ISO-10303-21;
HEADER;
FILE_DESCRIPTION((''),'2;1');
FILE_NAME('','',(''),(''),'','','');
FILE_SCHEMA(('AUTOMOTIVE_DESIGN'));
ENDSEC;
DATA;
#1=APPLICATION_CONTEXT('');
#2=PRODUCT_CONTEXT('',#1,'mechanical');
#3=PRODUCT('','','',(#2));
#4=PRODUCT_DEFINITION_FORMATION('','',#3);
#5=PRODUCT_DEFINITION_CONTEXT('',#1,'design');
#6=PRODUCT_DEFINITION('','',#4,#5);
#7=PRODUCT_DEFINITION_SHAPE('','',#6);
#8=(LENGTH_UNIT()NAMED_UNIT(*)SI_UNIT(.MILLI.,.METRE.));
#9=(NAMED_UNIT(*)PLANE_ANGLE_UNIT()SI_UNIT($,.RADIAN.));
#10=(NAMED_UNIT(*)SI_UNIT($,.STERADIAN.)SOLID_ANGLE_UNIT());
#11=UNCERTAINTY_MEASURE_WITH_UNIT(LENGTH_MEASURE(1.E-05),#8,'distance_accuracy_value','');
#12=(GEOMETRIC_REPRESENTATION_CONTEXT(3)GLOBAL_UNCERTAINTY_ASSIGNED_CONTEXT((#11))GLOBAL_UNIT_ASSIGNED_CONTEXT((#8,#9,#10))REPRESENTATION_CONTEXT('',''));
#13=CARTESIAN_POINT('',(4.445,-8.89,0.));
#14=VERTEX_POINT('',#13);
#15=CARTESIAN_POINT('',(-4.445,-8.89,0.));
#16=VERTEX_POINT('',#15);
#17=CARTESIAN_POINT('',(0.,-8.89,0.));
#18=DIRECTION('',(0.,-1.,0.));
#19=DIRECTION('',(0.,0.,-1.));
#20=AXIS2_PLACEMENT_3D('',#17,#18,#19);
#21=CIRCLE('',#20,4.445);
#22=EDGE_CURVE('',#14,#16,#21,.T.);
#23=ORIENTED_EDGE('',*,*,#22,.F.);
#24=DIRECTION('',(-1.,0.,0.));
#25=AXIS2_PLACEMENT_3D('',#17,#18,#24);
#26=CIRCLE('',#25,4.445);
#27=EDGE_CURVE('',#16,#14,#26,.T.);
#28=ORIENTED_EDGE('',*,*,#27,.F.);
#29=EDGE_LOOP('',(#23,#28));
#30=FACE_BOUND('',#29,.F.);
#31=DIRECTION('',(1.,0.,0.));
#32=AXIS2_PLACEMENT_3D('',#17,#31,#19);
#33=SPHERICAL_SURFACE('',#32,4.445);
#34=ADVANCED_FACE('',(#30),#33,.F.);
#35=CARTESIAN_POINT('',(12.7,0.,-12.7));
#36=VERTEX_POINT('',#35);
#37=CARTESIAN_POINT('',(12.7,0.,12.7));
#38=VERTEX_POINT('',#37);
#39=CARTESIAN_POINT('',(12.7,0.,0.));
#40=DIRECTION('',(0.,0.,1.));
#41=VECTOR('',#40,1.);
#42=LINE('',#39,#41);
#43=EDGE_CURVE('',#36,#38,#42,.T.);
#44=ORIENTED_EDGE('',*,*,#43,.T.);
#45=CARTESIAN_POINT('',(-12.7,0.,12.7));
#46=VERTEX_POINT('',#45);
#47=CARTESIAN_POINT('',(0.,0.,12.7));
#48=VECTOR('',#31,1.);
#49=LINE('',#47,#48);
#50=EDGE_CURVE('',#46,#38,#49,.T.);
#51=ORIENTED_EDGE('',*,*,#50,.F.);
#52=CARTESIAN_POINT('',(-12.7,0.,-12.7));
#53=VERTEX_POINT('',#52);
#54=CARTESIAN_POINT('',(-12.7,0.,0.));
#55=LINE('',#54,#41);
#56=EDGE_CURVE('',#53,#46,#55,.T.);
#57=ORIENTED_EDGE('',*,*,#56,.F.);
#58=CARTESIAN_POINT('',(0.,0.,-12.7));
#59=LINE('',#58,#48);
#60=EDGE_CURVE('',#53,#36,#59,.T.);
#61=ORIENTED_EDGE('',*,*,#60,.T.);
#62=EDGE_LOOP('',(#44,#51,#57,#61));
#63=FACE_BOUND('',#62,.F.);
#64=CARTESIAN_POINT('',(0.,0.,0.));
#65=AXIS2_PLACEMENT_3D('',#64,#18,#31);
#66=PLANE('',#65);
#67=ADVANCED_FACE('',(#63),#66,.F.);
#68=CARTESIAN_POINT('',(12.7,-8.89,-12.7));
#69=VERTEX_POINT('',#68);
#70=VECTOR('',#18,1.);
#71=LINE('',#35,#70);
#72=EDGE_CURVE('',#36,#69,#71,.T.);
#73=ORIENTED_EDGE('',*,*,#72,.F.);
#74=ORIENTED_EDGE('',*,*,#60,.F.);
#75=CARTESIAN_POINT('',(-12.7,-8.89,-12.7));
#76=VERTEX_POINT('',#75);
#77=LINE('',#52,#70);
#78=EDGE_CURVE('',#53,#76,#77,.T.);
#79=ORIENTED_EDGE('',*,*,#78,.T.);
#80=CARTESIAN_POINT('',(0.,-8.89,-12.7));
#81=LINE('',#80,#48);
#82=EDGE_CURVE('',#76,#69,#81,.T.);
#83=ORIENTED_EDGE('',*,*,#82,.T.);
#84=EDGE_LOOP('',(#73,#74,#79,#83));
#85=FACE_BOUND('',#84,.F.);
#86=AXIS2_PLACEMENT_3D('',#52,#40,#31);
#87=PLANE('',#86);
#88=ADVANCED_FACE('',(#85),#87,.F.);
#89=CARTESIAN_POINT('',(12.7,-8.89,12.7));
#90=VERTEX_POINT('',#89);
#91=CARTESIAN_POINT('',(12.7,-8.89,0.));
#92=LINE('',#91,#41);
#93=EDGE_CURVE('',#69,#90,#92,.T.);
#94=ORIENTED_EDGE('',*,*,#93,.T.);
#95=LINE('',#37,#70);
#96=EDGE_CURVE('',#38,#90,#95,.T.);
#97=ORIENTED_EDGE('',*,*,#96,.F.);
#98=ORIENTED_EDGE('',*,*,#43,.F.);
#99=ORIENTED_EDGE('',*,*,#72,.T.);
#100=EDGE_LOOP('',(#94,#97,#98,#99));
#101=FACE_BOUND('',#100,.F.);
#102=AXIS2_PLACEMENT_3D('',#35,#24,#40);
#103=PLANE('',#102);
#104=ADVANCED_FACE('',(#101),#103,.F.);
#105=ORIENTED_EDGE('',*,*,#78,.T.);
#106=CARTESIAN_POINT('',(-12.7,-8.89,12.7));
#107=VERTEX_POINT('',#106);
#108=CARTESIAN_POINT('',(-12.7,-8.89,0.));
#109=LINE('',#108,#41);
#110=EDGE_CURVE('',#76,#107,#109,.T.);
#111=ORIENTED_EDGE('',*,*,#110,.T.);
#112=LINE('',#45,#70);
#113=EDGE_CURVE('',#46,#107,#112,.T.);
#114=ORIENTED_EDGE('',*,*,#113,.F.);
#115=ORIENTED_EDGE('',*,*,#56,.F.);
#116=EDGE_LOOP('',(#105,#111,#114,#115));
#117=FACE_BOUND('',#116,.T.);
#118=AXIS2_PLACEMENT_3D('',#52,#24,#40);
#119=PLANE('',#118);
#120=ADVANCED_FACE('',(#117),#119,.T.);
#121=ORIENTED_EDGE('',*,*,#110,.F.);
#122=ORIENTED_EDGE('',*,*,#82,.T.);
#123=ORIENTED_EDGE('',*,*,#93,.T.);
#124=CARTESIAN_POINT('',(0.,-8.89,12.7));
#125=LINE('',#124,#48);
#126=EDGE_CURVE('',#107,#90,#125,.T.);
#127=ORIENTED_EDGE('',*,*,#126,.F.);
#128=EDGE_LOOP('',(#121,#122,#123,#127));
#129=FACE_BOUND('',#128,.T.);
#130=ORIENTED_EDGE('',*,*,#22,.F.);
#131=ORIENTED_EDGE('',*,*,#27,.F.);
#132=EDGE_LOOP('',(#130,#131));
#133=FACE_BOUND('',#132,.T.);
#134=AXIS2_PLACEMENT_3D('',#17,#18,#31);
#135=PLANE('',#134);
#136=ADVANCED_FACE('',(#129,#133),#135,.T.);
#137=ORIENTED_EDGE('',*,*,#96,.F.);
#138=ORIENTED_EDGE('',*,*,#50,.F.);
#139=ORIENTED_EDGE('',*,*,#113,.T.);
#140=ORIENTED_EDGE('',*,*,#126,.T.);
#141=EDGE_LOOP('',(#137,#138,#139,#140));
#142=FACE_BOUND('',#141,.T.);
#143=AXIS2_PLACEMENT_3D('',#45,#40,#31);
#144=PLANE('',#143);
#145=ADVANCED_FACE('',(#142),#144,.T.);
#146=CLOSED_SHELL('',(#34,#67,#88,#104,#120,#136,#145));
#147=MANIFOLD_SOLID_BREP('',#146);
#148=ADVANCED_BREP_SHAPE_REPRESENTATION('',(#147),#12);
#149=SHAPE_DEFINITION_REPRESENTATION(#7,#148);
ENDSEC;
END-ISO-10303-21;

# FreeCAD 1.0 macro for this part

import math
import FreeCAD as App
import Part
import Sketcher
from FreeCAD import Vector
Q = App.Units.Quantity


def add_polygon(sketch, points):
    """Adds a closed chain of lines whose ends are joined by coincident constraints."""
    first, n = sketch.GeometryCount, len(points)
    for a, b in zip(points, points[1:] + points[:1]):
        sketch.addGeometry(Part.LineSegment(App.Vector(*a, 0), App.Vector(*b, 0)), False)
    for i in range(n):
        sketch.addConstraint(Sketcher.Constraint("Coincident", first + i, 2, first + (i + 1) % n, 1))

doc = App.newDocument("Part")
body = doc.addObject("PartDesign::Body", "Body")

sketch1 = doc.addObject("Sketcher::SketchObject", "Sketch")
body.addObject(sketch1)
sketch1.AttachmentSupport = (doc.XZ_Plane, [""])
sketch1.MapMode = "FlatFace"
add_polygon(sketch1, [(-13, 13), (-13, -13), (13, -13), (13, 13)])
sketch1.addConstraint(Sketcher.Constraint("Vertical", 0))
sketch1.addConstraint(Sketcher.Constraint("Horizontal", 1))
sketch1.addConstraint(Sketcher.Constraint("Vertical", 2))
sketch1.addConstraint(Sketcher.Constraint("Horizontal", 3))
sketch1.addConstraint(Sketcher.Constraint("Symmetric", 0, 2, 2, 2, -1, 1))
sketch1.addConstraint(Sketcher.Constraint("Equal", 3, 0))
sketch1.addConstraint(Sketcher.Constraint("DistanceX", 1, 1, 1, 2, Q("1 in")))
pad1 = doc.addObject("PartDesign::Pad", "Pad")
body.addObject(pad1)
pad1.Profile = sketch1
pad1.Length = Q("0.35 in")

sketch2 = doc.addObject("Sketcher::SketchObject", "Sketch001")
body.addObject(sketch2)
sketch2.AttachmentSupport = (doc.XZ_Plane, [""])
sketch2.MapMode = "FlatFace"
sketch2.AttachmentOffset = App.Placement(Vector(0, 0, 0.35 * 25.4), App.Rotation())
sketch2.addGeometry(Part.LineSegment(Vector(4.4, 0, 0), Vector(-4.4, 0, 0)), False)
sketch2.addGeometry(Part.ArcOfCircle(Part.Circle(Vector(0, 0, 0), Vector(0, 0, 1), 4.4), math.radians(180), math.radians(360)), False)
sketch2.addConstraint(Sketcher.Constraint("Coincident", 0, 1, 1, 2))
sketch2.addConstraint(Sketcher.Constraint("Coincident", 1, 1, 0, 2))
sketch2.addConstraint(Sketcher.Constraint("Horizontal", 0))
sketch2.addConstraint(Sketcher.Constraint("Coincident", 1, 3, -1, 1))
sketch2.addConstraint(Sketcher.Constraint("PointOnObject", 0, 1, -1))
sketch2.addConstraint(Sketcher.Constraint("Radius", 1, Q("0.175 in")))
groove = doc.addObject("PartDesign::Groove", "Groove")
body.addObject(groove)
groove.Profile = sketch2
groove.ReferenceAxis = (sketch2, ["H_Axis"])
groove.Angle = 360

doc.recompute()
